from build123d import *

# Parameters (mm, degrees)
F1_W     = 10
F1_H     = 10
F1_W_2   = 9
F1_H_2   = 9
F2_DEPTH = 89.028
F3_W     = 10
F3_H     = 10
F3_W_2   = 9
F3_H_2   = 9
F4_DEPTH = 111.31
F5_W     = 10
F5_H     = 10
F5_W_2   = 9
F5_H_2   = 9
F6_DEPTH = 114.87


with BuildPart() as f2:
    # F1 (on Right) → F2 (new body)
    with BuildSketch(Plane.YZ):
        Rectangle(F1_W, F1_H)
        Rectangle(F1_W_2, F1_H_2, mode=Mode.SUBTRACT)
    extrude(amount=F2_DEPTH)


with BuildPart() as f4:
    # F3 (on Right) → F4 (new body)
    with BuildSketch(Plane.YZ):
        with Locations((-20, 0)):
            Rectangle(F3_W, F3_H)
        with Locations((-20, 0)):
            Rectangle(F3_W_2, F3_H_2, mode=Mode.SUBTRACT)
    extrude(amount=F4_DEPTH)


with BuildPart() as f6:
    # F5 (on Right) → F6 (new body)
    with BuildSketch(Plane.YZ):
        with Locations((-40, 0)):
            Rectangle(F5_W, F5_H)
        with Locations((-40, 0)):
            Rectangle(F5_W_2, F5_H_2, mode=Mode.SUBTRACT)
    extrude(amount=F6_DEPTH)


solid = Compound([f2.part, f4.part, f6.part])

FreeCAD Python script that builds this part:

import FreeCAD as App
import Part
import Sketcher
Q = App.Units.Quantity


def add_polygon(sketch, points):
    """Adds a closed chain of lines whose ends are joined by coincident constraints."""
    first, n = sketch.GeometryCount, len(points)
    for a, b in zip(points, points[1:] + points[:1]):
        sketch.addGeometry(Part.LineSegment(App.Vector(*a, 0), App.Vector(*b, 0)), False)
    for i in range(n):
        sketch.addConstraint(Sketcher.Constraint("Coincident", first + i, 2, first + (i + 1) % n, 1))

doc = App.newDocument("Part")
body = doc.addObject("PartDesign::Body", "Body")

sketch1 = doc.addObject("Sketcher::SketchObject", "Sketch")
body.addObject(sketch1)
sketch1.AttachmentSupport = (doc.YZ_Plane, [""])
sketch1.MapMode = "FlatFace"
add_polygon(sketch1, [(-5, 5), (-5, -5), (5, -5), (5, 5)])
add_polygon(sketch1, [(4.5, -4.5), (-4.5, -4.5), (-4.5, 4.5), (4.5, 4.5)])
sketch1.addConstraint([
    Sketcher.Constraint("Vertical", 0),
    Sketcher.Constraint("Horizontal", 1),
    Sketcher.Constraint("Vertical", 2),
    Sketcher.Constraint("Horizontal", 3),
    Sketcher.Constraint("Horizontal", 4),
    Sketcher.Constraint("Vertical", 5),
    Sketcher.Constraint("Horizontal", 6),
    Sketcher.Constraint("Vertical", 7),
    Sketcher.Constraint("Symmetric", 0, 2, 2, 2, -1, 1),
    Sketcher.Constraint("Symmetric", 4, 2, 6, 2, -1, 1),
    Sketcher.Constraint("Equal", 3, 0),
    Sketcher.Constraint("Equal", 6, 5),
    Sketcher.Constraint("DistanceX", 1, 1, 1, 2, Q("10 mm")),
    Sketcher.Constraint("DistanceX", 4, 2, 4, 1, Q("9 mm")),
])
pad1 = doc.addObject("PartDesign::Pad", "Pad")
body.addObject(pad1)
pad1.Profile = sketch1
pad1.Length = 89.028
body2 = doc.addObject("PartDesign::Body", "Body001")

sketch2 = doc.addObject("Sketcher::SketchObject", "Sketch001")
body2.addObject(sketch2)
sketch2.AttachmentSupport = (doc.getObject("YZ_Plane001"), [""])
sketch2.MapMode = "FlatFace"
add_polygon(sketch2, [(-25, 5), (-25, -5), (-15, -5), (-15, 5)])
add_polygon(sketch2, [(-15.5, -4.5), (-24.5, -4.5), (-24.5, 4.5), (-15.5, 4.5)])
sketch2.addConstraint([
    Sketcher.Constraint("Vertical", 0),
    Sketcher.Constraint("Horizontal", 1),
    Sketcher.Constraint("Vertical", 2),
    Sketcher.Constraint("Horizontal", 3),
    Sketcher.Constraint("Horizontal", 4),
    Sketcher.Constraint("Vertical", 5),
    Sketcher.Constraint("Horizontal", 6),
    Sketcher.Constraint("Vertical", 7),
    Sketcher.Constraint("Equal", 3, 0),
    Sketcher.Constraint("Equal", 6, 5),
    Sketcher.Constraint("DistanceX", 1, 1, 1, 2, Q("10 mm")),
    Sketcher.Constraint("DistanceX", 4, 2, 4, 1, Q("9 mm")),
    Sketcher.Constraint("DistanceX", 0, 2, -1, 1, Q("25 mm")),
    Sketcher.Constraint("DistanceY", 0, 2, -1, 1, Q("5 mm")),
    Sketcher.Constraint("DistanceX", 4, 2, -1, 1, Q("24.5 mm")),
    Sketcher.Constraint("DistanceY", 4, 2, -1, 1, Q("4.5 mm")),
])
pad2 = doc.addObject("PartDesign::Pad", "Pad001")
body2.addObject(pad2)
pad2.Profile = sketch2
pad2.Length = 111.31
body3 = doc.addObject("PartDesign::Body", "Body002")

sketch3 = doc.addObject("Sketcher::SketchObject", "Sketch002")
body3.addObject(sketch3)
sketch3.AttachmentSupport = (doc.getObject("YZ_Plane002"), [""])
sketch3.MapMode = "FlatFace"
add_polygon(sketch3, [(-45, 5), (-45, -5), (-35, -5), (-35, 5)])
add_polygon(sketch3, [(-35.5, -4.5), (-44.5, -4.5), (-44.5, 4.5), (-35.5, 4.5)])
sketch3.addConstraint([
    Sketcher.Constraint("Vertical", 0),
    Sketcher.Constraint("Horizontal", 1),
    Sketcher.Constraint("Vertical", 2),
    Sketcher.Constraint("Horizontal", 3),
    Sketcher.Constraint("Horizontal", 4),
    Sketcher.Constraint("Vertical", 5),
    Sketcher.Constraint("Horizontal", 6),
    Sketcher.Constraint("Vertical", 7),
    Sketcher.Constraint("Equal", 3, 0),
    Sketcher.Constraint("Equal", 6, 5),
    Sketcher.Constraint("DistanceX", 1, 1, 1, 2, Q("10 mm")),
    Sketcher.Constraint("DistanceX", 4, 2, 4, 1, Q("9 mm")),
    Sketcher.Constraint("DistanceX", 0, 2, -1, 1, Q("45 mm")),
    Sketcher.Constraint("DistanceY", 0, 2, -1, 1, Q("5 mm")),
    Sketcher.Constraint("DistanceX", 4, 2, -1, 1, Q("44.5 mm")),
    Sketcher.Constraint("DistanceY", 4, 2, -1, 1, Q("4.5 mm")),
])
pad3 = doc.addObject("PartDesign::Pad", "Pad002")
body3.addObject(pad3)
pad3.Profile = sketch3
pad3.Length = 114.87

doc.recompute()
